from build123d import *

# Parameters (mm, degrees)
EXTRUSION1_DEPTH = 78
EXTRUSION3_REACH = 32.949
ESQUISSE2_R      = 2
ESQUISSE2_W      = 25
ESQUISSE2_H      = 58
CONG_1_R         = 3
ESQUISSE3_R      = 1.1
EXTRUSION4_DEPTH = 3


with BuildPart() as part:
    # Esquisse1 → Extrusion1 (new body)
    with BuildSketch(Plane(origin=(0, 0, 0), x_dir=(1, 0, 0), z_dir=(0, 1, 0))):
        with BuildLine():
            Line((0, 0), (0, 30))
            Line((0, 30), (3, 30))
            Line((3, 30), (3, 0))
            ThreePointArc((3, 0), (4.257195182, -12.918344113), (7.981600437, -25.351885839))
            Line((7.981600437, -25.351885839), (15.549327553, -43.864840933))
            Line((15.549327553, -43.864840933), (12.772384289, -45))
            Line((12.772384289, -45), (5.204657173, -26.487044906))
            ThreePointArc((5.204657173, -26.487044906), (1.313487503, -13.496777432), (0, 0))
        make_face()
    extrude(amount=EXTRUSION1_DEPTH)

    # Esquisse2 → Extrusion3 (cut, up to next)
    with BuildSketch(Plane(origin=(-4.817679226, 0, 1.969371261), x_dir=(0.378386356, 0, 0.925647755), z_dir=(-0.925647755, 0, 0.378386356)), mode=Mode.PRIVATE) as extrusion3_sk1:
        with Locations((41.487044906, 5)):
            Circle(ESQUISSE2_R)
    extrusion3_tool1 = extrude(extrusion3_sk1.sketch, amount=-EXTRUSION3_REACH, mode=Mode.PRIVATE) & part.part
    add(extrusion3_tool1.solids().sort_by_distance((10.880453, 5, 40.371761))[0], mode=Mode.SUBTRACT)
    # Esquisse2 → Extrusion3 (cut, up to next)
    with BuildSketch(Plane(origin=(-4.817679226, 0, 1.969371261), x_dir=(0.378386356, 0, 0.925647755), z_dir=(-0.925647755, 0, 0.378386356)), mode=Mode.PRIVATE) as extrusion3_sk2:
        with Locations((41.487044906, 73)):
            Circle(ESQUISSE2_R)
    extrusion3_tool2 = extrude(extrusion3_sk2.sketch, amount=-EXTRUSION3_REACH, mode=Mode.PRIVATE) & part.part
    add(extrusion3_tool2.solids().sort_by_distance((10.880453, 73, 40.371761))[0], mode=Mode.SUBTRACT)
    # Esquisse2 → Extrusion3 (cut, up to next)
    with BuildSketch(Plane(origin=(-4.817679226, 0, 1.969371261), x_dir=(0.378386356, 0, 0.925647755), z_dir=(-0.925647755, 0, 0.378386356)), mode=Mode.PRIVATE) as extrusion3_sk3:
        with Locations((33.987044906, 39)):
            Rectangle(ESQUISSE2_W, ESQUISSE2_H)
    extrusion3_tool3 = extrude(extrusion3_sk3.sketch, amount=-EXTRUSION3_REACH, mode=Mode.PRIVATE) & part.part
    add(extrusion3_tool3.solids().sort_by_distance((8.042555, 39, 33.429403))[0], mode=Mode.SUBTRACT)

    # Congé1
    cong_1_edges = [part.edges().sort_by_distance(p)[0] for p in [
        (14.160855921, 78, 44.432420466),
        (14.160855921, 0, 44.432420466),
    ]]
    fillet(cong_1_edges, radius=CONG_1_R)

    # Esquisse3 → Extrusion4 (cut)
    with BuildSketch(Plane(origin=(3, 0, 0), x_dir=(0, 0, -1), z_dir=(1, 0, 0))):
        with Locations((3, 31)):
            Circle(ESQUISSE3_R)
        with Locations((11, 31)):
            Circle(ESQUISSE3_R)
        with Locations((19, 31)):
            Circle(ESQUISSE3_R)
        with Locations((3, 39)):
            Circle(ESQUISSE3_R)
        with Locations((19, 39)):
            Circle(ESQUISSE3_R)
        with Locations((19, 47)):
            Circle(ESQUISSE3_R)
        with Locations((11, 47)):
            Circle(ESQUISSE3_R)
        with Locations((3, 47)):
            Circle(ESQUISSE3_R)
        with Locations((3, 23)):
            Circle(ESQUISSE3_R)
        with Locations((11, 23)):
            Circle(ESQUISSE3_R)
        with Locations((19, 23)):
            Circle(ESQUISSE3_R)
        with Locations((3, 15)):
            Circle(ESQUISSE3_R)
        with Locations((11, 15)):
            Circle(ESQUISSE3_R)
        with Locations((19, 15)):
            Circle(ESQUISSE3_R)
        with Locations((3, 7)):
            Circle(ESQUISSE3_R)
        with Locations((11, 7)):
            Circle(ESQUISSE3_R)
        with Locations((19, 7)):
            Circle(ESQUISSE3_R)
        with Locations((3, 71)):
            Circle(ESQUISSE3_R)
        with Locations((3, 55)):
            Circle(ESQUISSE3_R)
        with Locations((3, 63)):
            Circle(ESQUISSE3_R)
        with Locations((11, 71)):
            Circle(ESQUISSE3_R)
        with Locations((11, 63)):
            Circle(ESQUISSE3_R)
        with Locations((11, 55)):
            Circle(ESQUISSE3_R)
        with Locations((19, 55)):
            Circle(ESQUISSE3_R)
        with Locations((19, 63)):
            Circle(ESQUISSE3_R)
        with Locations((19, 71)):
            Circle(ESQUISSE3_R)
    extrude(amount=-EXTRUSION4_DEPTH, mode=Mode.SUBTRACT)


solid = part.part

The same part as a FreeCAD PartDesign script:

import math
import FreeCAD as App
import Part
import Sketcher
from FreeCAD import Vector


def edges_at(feature, points):
    """Names of the edges that pass closest to the given points."""
    edges = feature.Shape.Edges
    near = lambda p: min(range(len(edges)), key=lambda i: edges[i].distToShape(Part.Vertex(*p))[0])
    return sorted({f"Edge{near(p) + 1}" for p in points})

doc = App.newDocument("Part")
body = doc.addObject("PartDesign::Body", "Body")

# Sketch on XZ plane
sketch1 = body.newObject("Sketcher::SketchObject", "Sketch")
sketch1.AttachmentSupport = (doc.getObject("XZ_Plane"), [""])
sketch1.MapMode = "FlatFace"
sketch1.addGeometry(Part.LineSegment(Vector(0, -30, 0), Vector(0, 0, 0)), False)
sketch1.addGeometry(Part.ArcOfCircle(Part.Circle(Vector(70, 0, 0), Vector(0, 0, 1), 70), math.radians(158), math.radians(180)), False)
sketch1.addGeometry(Part.LineSegment(Vector(5.2, 26.5, 0), Vector(12.8, 45, 0)), False)
sketch1.addGeometry(Part.LineSegment(Vector(12.8, 45, 0), Vector(15.5, 43.9, 0)), False)
sketch1.addGeometry(Part.LineSegment(Vector(15.5, 43.9, 0), Vector(8, 25.4, 0)), False)
sketch1.addGeometry(Part.ArcOfCircle(Part.Circle(Vector(70, 0, 0), Vector(0, 0, 1), 67), math.radians(158), math.radians(180)), False)
sketch1.addGeometry(Part.LineSegment(Vector(3, 0, 0), Vector(3, -30, 0)), False)
sketch1.addGeometry(Part.LineSegment(Vector(3, -30, 0), Vector(0, -30, 0)), False)
sketch1.addConstraint(Sketcher.Constraint("Tangent", 0, 2, 1, 2))
sketch1.addConstraint(Sketcher.Constraint("Tangent", 1, 1, 2, 1))
sketch1.addConstraint(Sketcher.Constraint("Coincident", 2, 2, 3, 1))
sketch1.addConstraint(Sketcher.Constraint("Coincident", 3, 2, 4, 1))
sketch1.addConstraint(Sketcher.Constraint("Tangent", 4, 2, 5, 1))
sketch1.addConstraint(Sketcher.Constraint("Tangent", 5, 2, 6, 1))
sketch1.addConstraint(Sketcher.Constraint("Coincident", 6, 2, 7, 1))
sketch1.addConstraint(Sketcher.Constraint("Coincident", 7, 2, 0, 1))
sketch1.addConstraint(Sketcher.Constraint("Vertical", 0))
sketch1.addConstraint(Sketcher.Constraint("Vertical", 6))
sketch1.addConstraint(Sketcher.Constraint("Horizontal", 7))
sketch1.addConstraint(Sketcher.Constraint("Coincident", 0, 2, -1, 1))
sketch1.addConstraint(Sketcher.Constraint("Coincident", 5, 3, 1, 3))
sketch1.addConstraint(Sketcher.Constraint("Perpendicular", 2, 3))
sketch1.addConstraint(Sketcher.Constraint("Perpendicular", 3, 4))
sketch1.addConstraint(Sketcher.Constraint("Radius", 1, 70.0))
sketch1.addConstraint(Sketcher.Constraint("Radius", 5, 67.0))
sketch1.addConstraint(Sketcher.Constraint("DistanceY", 0, 1, 0, 2, 30.0))
sketch1.addConstraint(Sketcher.Constraint("Distance", 2, 20.0))
sketch1.addConstraint(Sketcher.Constraint("DistanceY", -1, 1, 2, 2, 45.0))
pad1 = body.newObject("PartDesign::Pad", "Pad")
pad1.Profile = sketch1
pad1.Length = 78
pad1.Reversed = True

# Sketch on an angled plane
sketch2 = body.newObject("Sketcher::SketchObject", "Sketch001")
sketch2.Placement = App.Placement(Vector(-4.817679, 0, 1.969371), App.Rotation(Vector(0.378386356, 0, 0.925647755), Vector(0, 1.000000001, 0), Vector(-0.925647755, 0, 0.378386356), "ZXY"))
sketch2.addGeometry(Part.Circle(Vector(41.5, 5, 0), Vector(0, 0, 1), 2), False)
sketch2.addConstraint(Sketcher.Constraint("Diameter", 0, 4.0))
sketch2.addConstraint(Sketcher.Constraint("DistanceY", -1, 1, 0, 3, 5.0))
sketch2.addConstraint(Sketcher.Constraint("DistanceX", -1, 1, 0, 3, 41.487045))
pocket1 = body.newObject("PartDesign::Pocket", "Pocket")
pocket1.Profile = sketch2
pocket1.Type = "UpToFirst"

# Sketch on an angled plane
sketch3 = body.newObject("Sketcher::SketchObject", "Sketch002")
sketch3.Placement = App.Placement(Vector(-4.817679, 0, 1.969371), App.Rotation(Vector(0.378386356, 0, 0.925647755), Vector(0, 1.000000001, 0), Vector(-0.925647755, 0, 0.378386356), "ZXY"))
sketch3.addGeometry(Part.Circle(Vector(41.5, 73, 0), Vector(0, 0, 1), 2), False)
sketch3.addConstraint(Sketcher.Constraint("Diameter", 0, 4.0))
sketch3.addConstraint(Sketcher.Constraint("DistanceY", -1, 1, 0, 3, 73.0))
sketch3.addConstraint(Sketcher.Constraint("DistanceX", -1, 1, 0, 3, 41.487045))
pocket2 = body.newObject("PartDesign::Pocket", "Pocket001")
pocket2.Profile = sketch3
pocket2.Type = "UpToFirst"

# Sketch on an angled plane
sketch4 = body.newObject("Sketcher::SketchObject", "Sketch003")
sketch4.Placement = App.Placement(Vector(-4.817679, 0, 1.969371), App.Rotation(Vector(0.378386356, 0, 0.925647755), Vector(0, 1.000000001, 0), Vector(-0.925647755, 0, 0.378386356), "ZXY"))
sketch4.addGeometry(Part.LineSegment(Vector(21, 68, 0), Vector(21, 10, 0)), False)
sketch4.addGeometry(Part.LineSegment(Vector(21, 10, 0), Vector(46, 10, 0)), False)
sketch4.addGeometry(Part.LineSegment(Vector(46, 10, 0), Vector(46, 68, 0)), False)
sketch4.addGeometry(Part.LineSegment(Vector(46, 68, 0), Vector(21, 68, 0)), False)
sketch4.addConstraint(Sketcher.Constraint("Coincident", 0, 2, 1, 1))
sketch4.addConstraint(Sketcher.Constraint("Coincident", 1, 2, 2, 1))
sketch4.addConstraint(Sketcher.Constraint("Coincident", 2, 2, 3, 1))
sketch4.addConstraint(Sketcher.Constraint("Coincident", 3, 2, 0, 1))
sketch4.addConstraint(Sketcher.Constraint("Vertical", 0))
sketch4.addConstraint(Sketcher.Constraint("Horizontal", 1))
sketch4.addConstraint(Sketcher.Constraint("Vertical", 2))
sketch4.addConstraint(Sketcher.Constraint("Horizontal", 3))
sketch4.addConstraint(Sketcher.Constraint("DistanceX", 1, 1, 1, 2, 25.0))
sketch4.addConstraint(Sketcher.Constraint("DistanceY", 0, 2, 0, 1, 58.0))
sketch4.addConstraint(Sketcher.Constraint("DistanceY", -1, 1, 0, 2, 10.0))
sketch4.addConstraint(Sketcher.Constraint("DistanceX", -1, 1, 0, 2, 21.487045))
pocket3 = body.newObject("PartDesign::Pocket", "Pocket002")
pocket3.Profile = sketch4
pocket3.Length = 3.186828
doc.recompute()

fillet = body.newObject("PartDesign::Fillet", "Fillet")
fillet.Base = (pocket3, edges_at(pocket3, [(14.161, 78, 44.432), (14.161, 0, 44.432)]))
fillet.Radius = 3

# Sketch on YZ plane
sketch5 = body.newObject("Sketcher::SketchObject", "Sketch004")
sketch5.AttachmentSupport = (doc.getObject("YZ_Plane"), [""])
sketch5.MapMode = "FlatFace"
sketch5.AttachmentOffset = App.Placement(Vector(0, 0, 3), App.Rotation())
sketch5.addGeometry(Part.Circle(Vector(31, -3, 0), Vector(0, 0, 1), 1.1), False)
sketch5.addGeometry(Part.Circle(Vector(31, -11, 0), Vector(0, 0, 1), 1.1), False)
sketch5.addGeometry(Part.Circle(Vector(31, -19, 0), Vector(0, 0, 1), 1.1), False)
sketch5.addGeometry(Part.Circle(Vector(39, -3, 0), Vector(0, 0, 1), 1.1), False)
sketch5.addGeometry(Part.Circle(Vector(39, -19, 0), Vector(0, 0, 1), 1.1), False)
sketch5.addGeometry(Part.Circle(Vector(47, -19, 0), Vector(0, 0, 1), 1.1), False)
sketch5.addGeometry(Part.Circle(Vector(47, -11, 0), Vector(0, 0, 1), 1.1), False)
sketch5.addGeometry(Part.Circle(Vector(47, -3, 0), Vector(0, 0, 1), 1.1), False)
sketch5.addGeometry(Part.Circle(Vector(23, -3, 0), Vector(0, 0, 1), 1.1), False)
sketch5.addGeometry(Part.Circle(Vector(23, -11, 0), Vector(0, 0, 1), 1.1), False)
sketch5.addGeometry(Part.Circle(Vector(23, -19, 0), Vector(0, 0, 1), 1.1), False)
sketch5.addGeometry(Part.Circle(Vector(15, -3, 0), Vector(0, 0, 1), 1.1), False)
sketch5.addGeometry(Part.Circle(Vector(15, -11, 0), Vector(0, 0, 1), 1.1), False)
sketch5.addGeometry(Part.Circle(Vector(15, -19, 0), Vector(0, 0, 1), 1.1), False)
sketch5.addGeometry(Part.Circle(Vector(7, -3, 0), Vector(0, 0, 1), 1.1), False)
sketch5.addGeometry(Part.Circle(Vector(7, -11, 0), Vector(0, 0, 1), 1.1), False)
sketch5.addGeometry(Part.Circle(Vector(7, -19, 0), Vector(0, 0, 1), 1.1), False)
sketch5.addGeometry(Part.Circle(Vector(71, -3, 0), Vector(0, 0, 1), 1.1), False)
sketch5.addGeometry(Part.Circle(Vector(55, -3, 0), Vector(0, 0, 1), 1.1), False)
sketch5.addGeometry(Part.Circle(Vector(63, -3, 0), Vector(0, 0, 1), 1.1), False)
sketch5.addGeometry(Part.Circle(Vector(71, -11, 0), Vector(0, 0, 1), 1.1), False)
sketch5.addGeometry(Part.Circle(Vector(63, -11, 0), Vector(0, 0, 1), 1.1), False)
sketch5.addGeometry(Part.Circle(Vector(55, -11, 0), Vector(0, 0, 1), 1.1), False)
sketch5.addGeometry(Part.Circle(Vector(55, -19, 0), Vector(0, 0, 1), 1.1), False)
sketch5.addGeometry(Part.Circle(Vector(63, -19, 0), Vector(0, 0, 1), 1.1), False)
sketch5.addGeometry(Part.Circle(Vector(71, -19, 0), Vector(0, 0, 1), 1.1), False)
sketch5.addConstraint(Sketcher.Constraint("Equal", 0, 1))
sketch5.addConstraint(Sketcher.Constraint("Equal", 1, 2))
sketch5.addConstraint(Sketcher.Constraint("Equal", 2, 3))
sketch5.addConstraint(Sketcher.Constraint("Equal", 3, 4))
sketch5.addConstraint(Sketcher.Constraint("Equal", 4, 5))
sketch5.addConstraint(Sketcher.Constraint("Equal", 5, 6))
sketch5.addConstraint(Sketcher.Constraint("Equal", 6, 7))
sketch5.addConstraint(Sketcher.Constraint("Equal", 7, 8))
sketch5.addConstraint(Sketcher.Constraint("Equal", 8, 9))
sketch5.addConstraint(Sketcher.Constraint("Equal", 9, 10))
sketch5.addConstraint(Sketcher.Constraint("Equal", 10, 11))
sketch5.addConstraint(Sketcher.Constraint("Equal", 11, 12))
sketch5.addConstraint(Sketcher.Constraint("Equal", 12, 13))
sketch5.addConstraint(Sketcher.Constraint("Equal", 13, 14))
sketch5.addConstraint(Sketcher.Constraint("Equal", 14, 15))
sketch5.addConstraint(Sketcher.Constraint("Equal", 15, 16))
sketch5.addConstraint(Sketcher.Constraint("Equal", 16, 17))
sketch5.addConstraint(Sketcher.Constraint("Equal", 17, 18))
sketch5.addConstraint(Sketcher.Constraint("Equal", 18, 19))
sketch5.addConstraint(Sketcher.Constraint("Equal", 19, 20))
sketch5.addConstraint(Sketcher.Constraint("Equal", 20, 21))
sketch5.addConstraint(Sketcher.Constraint("Equal", 21, 22))
sketch5.addConstraint(Sketcher.Constraint("Equal", 22, 23))
sketch5.addConstraint(Sketcher.Constraint("Equal", 23, 24))
sketch5.addConstraint(Sketcher.Constraint("Equal", 24, 25))
sketch5.addConstraint(Sketcher.Constraint("Horizontal", 0, 3, 3, 3))
sketch5.addConstraint(Sketcher.Constraint("Horizontal", 2, 3, 4, 3))
sketch5.addConstraint(Sketcher.Constraint("Horizontal", 4, 3, 5, 3))
sketch5.addConstraint(Sketcher.Constraint("Horizontal", 1, 3, 6, 3))
sketch5.addConstraint(Sketcher.Constraint("Horizontal", 3, 3, 7, 3))
sketch5.addConstraint(Sketcher.Constraint("Horizontal", 7, 3, 8, 3))
sketch5.addConstraint(Sketcher.Constraint("Horizontal", 6, 3, 9, 3))
sketch5.addConstraint(Sketcher.Constraint("Horizontal", 5, 3, 10, 3))
sketch5.addConstraint(Sketcher.Constraint("Horizontal", 8, 3, 11, 3))
sketch5.addConstraint(Sketcher.Constraint("Horizontal", 9, 3, 12, 3))
sketch5.addConstraint(Sketcher.Constraint("Horizontal", 10, 3, 13, 3))
sketch5.addConstraint(Sketcher.Constraint("Horizontal", 11, 3, 14, 3))
sketch5.addConstraint(Sketcher.Constraint("Horizontal", 12, 3, 15, 3))
sketch5.addConstraint(Sketcher.Constraint("Horizontal", 13, 3, 16, 3))
sketch5.addConstraint(Sketcher.Constraint("Horizontal", 14, 3, 17, 3))
sketch5.addConstraint(Sketcher.Constraint("Horizontal", 17, 3, 18, 3))
sketch5.addConstraint(Sketcher.Constraint("Horizontal", 18, 3, 19, 3))
sketch5.addConstraint(Sketcher.Constraint("Horizontal", 15, 3, 20, 3))
sketch5.addConstraint(Sketcher.Constraint("Horizontal", 20, 3, 21, 3))
sketch5.addConstraint(Sketcher.Constraint("Horizontal", 21, 3, 22, 3))
sketch5.addConstraint(Sketcher.Constraint("Horizontal", 16, 3, 23, 3))
sketch5.addConstraint(Sketcher.Constraint("Horizontal", 23, 3, 24, 3))
sketch5.addConstraint(Sketcher.Constraint("Horizontal", 24, 3, 25, 3))
sketch5.addConstraint(Sketcher.Constraint("Vertical", 0, 3, 1, 3))
sketch5.addConstraint(Sketcher.Constraint("Vertical", 1, 3, 2, 3))
sketch5.addConstraint(Sketcher.Constraint("Vertical", 3, 3, 4, 3))
sketch5.addConstraint(Sketcher.Constraint("Vertical", 5, 3, 6, 3))
sketch5.addConstraint(Sketcher.Constraint("Vertical", 6, 3, 7, 3))
sketch5.addConstraint(Sketcher.Constraint("Vertical", 8, 3, 9, 3))
sketch5.addConstraint(Sketcher.Constraint("Vertical", 9, 3, 10, 3))
sketch5.addConstraint(Sketcher.Constraint("Vertical", 11, 3, 12, 3))
sketch5.addConstraint(Sketcher.Constraint("Vertical", 12, 3, 13, 3))
sketch5.addConstraint(Sketcher.Constraint("Vertical", 14, 3, 15, 3))
sketch5.addConstraint(Sketcher.Constraint("Vertical", 15, 3, 16, 3))
sketch5.addConstraint(Sketcher.Constraint("Vertical", 17, 3, 20, 3))
sketch5.addConstraint(Sketcher.Constraint("Vertical", 19, 3, 21, 3))
sketch5.addConstraint(Sketcher.Constraint("Vertical", 18, 3, 22, 3))
sketch5.addConstraint(Sketcher.Constraint("Vertical", 22, 3, 23, 3))
sketch5.addConstraint(Sketcher.Constraint("Vertical", 21, 3, 24, 3))
sketch5.addConstraint(Sketcher.Constraint("Vertical", 20, 3, 25, 3))
sketch5.addConstraint(Sketcher.Constraint("Diameter", 0, 2.2))
sketch5.addConstraint(Sketcher.Constraint("DistanceX", -1, 1, 0, 3, 31.0))
sketch5.addConstraint(Sketcher.Constraint("DistanceY", 0, 3, -1, 1, 3.0))
sketch5.addConstraint(Sketcher.Constraint("DistanceY", 1, 3, -1, 1, 11.0))
sketch5.addConstraint(Sketcher.Constraint("DistanceY", 2, 3, -1, 1, 19.0))
sketch5.addConstraint(Sketcher.Constraint("DistanceX", -1, 1, 3, 3, 39.0))
sketch5.addConstraint(Sketcher.Constraint("DistanceX", -1, 1, 5, 3, 47.0))
sketch5.addConstraint(Sketcher.Constraint("DistanceX", -1, 1, 8, 3, 23.0))
sketch5.addConstraint(Sketcher.Constraint("DistanceX", -1, 1, 11, 3, 15.0))
sketch5.addConstraint(Sketcher.Constraint("DistanceX", -1, 1, 14, 3, 7.0))
sketch5.addConstraint(Sketcher.Constraint("DistanceX", -1, 1, 17, 3, 71.0))
sketch5.addConstraint(Sketcher.Constraint("DistanceX", -1, 1, 18, 3, 55.0))
sketch5.addConstraint(Sketcher.Constraint("DistanceX", -1, 1, 19, 3, 63.0))
pocket4 = body.newObject("PartDesign::Pocket", "Pocket003")
pocket4.Profile = sketch5
pocket4.Length = 3

doc.recompute()
